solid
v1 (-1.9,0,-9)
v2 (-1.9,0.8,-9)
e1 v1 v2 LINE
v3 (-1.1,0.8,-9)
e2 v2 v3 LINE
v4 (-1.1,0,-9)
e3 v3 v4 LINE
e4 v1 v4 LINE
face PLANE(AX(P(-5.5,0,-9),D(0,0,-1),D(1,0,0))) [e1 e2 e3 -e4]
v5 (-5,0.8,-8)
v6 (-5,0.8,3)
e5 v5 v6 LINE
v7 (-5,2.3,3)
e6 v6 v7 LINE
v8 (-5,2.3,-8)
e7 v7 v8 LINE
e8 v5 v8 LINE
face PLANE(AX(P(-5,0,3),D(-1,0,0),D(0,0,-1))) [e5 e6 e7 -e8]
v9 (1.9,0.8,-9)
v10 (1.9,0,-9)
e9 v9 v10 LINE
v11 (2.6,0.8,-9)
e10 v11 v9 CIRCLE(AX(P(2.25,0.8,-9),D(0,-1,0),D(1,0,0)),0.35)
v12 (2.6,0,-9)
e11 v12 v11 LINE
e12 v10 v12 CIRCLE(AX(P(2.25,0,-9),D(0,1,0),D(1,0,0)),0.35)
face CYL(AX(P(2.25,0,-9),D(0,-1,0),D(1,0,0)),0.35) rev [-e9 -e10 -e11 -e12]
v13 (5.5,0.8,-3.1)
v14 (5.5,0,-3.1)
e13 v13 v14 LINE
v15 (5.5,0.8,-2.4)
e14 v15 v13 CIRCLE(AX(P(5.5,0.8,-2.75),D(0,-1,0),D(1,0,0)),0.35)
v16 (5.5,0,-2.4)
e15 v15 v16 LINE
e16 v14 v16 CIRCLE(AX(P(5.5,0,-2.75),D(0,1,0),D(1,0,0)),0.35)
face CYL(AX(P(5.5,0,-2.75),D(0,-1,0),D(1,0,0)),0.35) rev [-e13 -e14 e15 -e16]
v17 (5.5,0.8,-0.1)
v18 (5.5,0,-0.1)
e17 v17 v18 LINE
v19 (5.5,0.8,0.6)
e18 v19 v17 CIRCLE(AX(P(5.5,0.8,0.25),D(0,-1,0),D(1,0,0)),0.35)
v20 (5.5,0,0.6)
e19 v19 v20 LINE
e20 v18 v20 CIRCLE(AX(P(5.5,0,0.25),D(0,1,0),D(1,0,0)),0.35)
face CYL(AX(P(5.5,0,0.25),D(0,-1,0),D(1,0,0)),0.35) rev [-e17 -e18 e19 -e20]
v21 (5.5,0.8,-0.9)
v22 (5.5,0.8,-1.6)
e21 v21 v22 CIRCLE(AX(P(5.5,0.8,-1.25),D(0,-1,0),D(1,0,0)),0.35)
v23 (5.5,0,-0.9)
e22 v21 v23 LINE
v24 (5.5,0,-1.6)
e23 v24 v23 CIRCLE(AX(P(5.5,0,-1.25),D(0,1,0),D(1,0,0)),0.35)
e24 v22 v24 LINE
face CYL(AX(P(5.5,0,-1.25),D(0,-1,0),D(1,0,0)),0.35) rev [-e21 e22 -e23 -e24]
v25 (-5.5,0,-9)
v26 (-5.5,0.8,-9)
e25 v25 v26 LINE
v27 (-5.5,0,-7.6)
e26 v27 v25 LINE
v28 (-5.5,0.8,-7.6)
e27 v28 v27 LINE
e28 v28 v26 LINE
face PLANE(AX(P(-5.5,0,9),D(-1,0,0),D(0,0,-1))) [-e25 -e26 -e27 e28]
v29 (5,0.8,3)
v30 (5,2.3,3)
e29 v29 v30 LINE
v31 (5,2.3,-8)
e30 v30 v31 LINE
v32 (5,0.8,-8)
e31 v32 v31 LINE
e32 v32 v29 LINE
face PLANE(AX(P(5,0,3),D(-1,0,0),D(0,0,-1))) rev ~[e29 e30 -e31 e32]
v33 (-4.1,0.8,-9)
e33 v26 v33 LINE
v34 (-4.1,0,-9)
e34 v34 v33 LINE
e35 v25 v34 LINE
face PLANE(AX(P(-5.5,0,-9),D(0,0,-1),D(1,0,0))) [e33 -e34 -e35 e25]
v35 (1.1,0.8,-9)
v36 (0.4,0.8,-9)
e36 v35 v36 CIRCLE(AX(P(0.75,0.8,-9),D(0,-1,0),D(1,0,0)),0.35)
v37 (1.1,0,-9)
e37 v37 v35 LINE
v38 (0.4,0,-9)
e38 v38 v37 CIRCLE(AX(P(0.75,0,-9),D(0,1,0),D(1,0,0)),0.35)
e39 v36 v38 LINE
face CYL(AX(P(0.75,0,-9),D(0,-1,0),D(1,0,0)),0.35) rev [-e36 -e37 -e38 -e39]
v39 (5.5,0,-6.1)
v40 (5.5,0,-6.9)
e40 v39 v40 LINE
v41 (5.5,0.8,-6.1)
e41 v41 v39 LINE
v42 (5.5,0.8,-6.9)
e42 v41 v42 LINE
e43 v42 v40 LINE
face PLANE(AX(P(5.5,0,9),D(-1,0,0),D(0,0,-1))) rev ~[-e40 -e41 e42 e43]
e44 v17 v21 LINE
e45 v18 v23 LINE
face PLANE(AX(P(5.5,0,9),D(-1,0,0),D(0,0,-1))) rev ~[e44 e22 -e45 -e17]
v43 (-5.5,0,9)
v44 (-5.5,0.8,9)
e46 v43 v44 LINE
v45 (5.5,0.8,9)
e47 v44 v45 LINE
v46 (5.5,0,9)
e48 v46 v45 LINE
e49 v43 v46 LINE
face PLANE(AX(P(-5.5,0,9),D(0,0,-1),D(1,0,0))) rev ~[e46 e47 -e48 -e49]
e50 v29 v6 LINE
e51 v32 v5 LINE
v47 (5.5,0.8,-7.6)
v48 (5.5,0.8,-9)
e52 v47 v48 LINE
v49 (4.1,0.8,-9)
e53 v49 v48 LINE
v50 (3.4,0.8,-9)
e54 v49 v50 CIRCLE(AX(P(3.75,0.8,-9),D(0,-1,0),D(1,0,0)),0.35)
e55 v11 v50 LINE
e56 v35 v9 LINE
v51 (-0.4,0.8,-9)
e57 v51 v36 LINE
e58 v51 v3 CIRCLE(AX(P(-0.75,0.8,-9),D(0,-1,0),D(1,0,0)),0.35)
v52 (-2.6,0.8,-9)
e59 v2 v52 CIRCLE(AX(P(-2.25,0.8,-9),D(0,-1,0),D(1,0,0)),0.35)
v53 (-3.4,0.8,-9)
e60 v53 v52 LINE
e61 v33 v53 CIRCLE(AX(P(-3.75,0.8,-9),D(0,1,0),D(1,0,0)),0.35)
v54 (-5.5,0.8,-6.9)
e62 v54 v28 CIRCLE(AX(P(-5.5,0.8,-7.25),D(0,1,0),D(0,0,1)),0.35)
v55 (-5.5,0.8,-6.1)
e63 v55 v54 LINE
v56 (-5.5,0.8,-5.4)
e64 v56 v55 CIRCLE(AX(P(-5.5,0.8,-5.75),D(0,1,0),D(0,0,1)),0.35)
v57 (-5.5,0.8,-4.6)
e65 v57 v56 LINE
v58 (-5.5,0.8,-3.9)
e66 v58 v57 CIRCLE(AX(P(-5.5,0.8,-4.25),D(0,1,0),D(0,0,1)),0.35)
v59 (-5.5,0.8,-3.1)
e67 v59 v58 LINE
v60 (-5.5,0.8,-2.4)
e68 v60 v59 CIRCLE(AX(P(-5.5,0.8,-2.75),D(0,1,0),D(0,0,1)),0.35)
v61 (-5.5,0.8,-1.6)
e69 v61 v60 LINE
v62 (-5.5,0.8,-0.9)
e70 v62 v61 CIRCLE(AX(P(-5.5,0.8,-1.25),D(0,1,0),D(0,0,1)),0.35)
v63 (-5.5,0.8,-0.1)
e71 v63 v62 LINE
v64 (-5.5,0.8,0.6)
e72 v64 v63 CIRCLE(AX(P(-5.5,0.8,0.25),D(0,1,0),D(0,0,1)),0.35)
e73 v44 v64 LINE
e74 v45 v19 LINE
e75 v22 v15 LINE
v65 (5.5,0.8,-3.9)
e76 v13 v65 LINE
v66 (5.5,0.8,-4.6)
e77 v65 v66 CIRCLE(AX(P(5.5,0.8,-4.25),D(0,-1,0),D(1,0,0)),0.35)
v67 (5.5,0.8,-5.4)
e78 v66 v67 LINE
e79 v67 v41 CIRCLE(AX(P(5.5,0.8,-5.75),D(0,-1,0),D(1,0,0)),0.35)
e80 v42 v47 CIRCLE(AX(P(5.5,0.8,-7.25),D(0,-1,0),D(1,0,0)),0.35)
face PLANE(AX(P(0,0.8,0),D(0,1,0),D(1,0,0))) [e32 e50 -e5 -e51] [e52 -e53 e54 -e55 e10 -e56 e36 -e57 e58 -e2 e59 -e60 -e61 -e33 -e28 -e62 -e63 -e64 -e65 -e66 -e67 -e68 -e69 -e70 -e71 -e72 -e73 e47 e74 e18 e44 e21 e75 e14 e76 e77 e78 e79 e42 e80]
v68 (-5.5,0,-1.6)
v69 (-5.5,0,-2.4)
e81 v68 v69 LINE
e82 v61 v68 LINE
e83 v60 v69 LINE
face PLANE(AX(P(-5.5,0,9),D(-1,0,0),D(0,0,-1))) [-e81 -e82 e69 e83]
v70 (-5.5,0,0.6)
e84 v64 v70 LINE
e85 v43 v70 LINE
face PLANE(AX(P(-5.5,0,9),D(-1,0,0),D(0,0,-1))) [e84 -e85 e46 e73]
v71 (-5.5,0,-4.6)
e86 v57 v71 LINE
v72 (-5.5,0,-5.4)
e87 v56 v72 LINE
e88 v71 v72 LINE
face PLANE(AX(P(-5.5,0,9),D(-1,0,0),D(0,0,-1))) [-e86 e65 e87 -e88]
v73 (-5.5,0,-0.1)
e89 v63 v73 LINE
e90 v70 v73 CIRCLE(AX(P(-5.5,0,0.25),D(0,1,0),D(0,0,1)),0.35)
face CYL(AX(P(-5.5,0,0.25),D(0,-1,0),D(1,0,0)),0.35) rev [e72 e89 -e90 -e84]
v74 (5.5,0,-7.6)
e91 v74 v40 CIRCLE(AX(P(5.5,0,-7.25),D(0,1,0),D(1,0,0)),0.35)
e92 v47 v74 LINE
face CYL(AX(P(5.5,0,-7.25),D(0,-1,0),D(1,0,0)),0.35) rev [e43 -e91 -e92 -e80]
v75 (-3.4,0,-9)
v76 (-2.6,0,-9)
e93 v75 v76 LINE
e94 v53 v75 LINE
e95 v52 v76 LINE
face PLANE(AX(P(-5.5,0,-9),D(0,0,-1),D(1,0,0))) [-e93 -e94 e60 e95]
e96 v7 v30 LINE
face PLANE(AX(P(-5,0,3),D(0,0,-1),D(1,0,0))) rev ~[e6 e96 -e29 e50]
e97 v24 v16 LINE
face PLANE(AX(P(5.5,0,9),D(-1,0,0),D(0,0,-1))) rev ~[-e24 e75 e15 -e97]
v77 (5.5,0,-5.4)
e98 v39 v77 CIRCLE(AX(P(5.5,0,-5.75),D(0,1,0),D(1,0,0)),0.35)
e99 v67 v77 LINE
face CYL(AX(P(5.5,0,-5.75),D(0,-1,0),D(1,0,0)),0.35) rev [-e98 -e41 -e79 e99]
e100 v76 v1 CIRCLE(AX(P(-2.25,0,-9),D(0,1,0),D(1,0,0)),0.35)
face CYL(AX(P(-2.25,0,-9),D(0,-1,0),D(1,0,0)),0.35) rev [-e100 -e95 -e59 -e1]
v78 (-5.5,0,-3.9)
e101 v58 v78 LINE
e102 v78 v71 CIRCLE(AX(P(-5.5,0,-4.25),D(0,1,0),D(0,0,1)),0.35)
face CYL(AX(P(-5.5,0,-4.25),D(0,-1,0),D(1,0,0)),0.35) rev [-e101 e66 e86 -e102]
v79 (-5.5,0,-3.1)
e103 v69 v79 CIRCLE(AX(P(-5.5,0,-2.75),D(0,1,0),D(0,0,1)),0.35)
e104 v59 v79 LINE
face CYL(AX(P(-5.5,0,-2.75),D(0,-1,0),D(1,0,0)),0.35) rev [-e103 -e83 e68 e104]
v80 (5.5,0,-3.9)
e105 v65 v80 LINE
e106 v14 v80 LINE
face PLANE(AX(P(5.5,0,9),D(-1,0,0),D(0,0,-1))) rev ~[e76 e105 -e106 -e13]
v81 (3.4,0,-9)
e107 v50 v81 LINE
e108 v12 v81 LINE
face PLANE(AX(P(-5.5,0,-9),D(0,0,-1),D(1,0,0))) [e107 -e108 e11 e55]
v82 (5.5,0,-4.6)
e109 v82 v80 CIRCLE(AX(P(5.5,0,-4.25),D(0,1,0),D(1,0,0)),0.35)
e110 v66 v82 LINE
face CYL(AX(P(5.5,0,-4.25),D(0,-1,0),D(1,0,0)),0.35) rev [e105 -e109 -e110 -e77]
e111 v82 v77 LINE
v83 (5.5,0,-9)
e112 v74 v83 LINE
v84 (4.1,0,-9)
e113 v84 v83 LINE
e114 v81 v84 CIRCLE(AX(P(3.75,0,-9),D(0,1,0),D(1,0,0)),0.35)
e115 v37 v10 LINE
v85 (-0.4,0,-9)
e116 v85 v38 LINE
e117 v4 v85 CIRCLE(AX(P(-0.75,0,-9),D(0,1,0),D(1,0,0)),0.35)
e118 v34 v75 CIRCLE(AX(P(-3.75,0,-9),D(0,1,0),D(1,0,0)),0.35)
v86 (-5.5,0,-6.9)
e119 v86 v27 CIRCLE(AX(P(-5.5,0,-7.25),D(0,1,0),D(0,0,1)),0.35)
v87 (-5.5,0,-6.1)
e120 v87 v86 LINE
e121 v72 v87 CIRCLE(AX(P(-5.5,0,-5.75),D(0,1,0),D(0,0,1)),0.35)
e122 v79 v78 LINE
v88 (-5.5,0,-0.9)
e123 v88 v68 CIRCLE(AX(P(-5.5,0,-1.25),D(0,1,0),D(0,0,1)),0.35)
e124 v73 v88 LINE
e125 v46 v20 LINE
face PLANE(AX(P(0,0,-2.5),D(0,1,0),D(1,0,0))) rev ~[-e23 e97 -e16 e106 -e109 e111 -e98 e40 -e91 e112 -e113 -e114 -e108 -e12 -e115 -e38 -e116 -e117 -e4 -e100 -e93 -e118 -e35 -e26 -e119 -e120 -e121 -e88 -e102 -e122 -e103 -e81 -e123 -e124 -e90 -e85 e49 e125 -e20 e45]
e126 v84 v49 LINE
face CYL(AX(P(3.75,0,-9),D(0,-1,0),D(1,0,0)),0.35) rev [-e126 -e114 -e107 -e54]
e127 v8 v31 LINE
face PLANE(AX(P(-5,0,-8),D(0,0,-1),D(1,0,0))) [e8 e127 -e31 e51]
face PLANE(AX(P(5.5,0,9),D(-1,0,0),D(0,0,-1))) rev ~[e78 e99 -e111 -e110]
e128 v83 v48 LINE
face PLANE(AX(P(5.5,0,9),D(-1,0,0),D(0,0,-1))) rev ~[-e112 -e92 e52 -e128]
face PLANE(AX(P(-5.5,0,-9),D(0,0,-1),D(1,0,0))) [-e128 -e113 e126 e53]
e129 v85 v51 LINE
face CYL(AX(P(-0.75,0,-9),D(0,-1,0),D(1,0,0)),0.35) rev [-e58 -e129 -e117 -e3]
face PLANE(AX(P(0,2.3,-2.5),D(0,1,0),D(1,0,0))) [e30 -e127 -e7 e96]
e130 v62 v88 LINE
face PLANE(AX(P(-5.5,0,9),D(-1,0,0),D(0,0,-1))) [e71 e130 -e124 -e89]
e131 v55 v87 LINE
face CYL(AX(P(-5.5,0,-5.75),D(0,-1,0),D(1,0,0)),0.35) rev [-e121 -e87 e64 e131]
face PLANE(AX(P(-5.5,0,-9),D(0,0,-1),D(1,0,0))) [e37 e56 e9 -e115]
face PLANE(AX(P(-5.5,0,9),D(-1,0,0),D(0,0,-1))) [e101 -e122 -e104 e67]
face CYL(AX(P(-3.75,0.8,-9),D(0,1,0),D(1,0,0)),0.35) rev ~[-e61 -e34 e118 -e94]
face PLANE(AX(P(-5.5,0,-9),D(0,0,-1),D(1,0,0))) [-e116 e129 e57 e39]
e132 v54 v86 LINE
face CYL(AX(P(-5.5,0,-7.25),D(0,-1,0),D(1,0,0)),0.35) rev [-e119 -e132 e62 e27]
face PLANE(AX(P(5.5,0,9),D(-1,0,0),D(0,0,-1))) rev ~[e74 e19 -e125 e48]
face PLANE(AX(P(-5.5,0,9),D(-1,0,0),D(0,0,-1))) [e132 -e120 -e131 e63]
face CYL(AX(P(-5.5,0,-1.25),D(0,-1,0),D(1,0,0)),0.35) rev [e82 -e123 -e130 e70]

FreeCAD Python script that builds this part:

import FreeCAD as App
import Part
import Sketcher
Q = App.Units.Quantity


def add_polygon(sketch, points):
    """Adds a closed chain of lines whose ends are joined by coincident constraints."""
    first, n = sketch.GeometryCount, len(points)
    for a, b in zip(points, points[1:] + points[:1]):
        sketch.addGeometry(Part.LineSegment(App.Vector(*a, 0), App.Vector(*b, 0)), False)
    for i in range(n):
        sketch.addConstraint(Sketcher.Constraint("Coincident", first + i, 2, first + (i + 1) % n, 1))

doc = App.newDocument("Part")
body = doc.addObject("PartDesign::Body", "Body")

# Sketch on XZ plane
sketch1 = doc.addObject("Sketcher::SketchObject", "Sketch")
body.addObject(sketch1)
sketch1.AttachmentSupport = (doc.XZ_Plane, [""])
sketch1.MapMode = "FlatFace"
add_polygon(sketch1, [(-6, -9), (-6, 9), (6, 9), (6, -9)])  # lines 0-3
sketch1.addConstraint([
    Sketcher.Constraint("Vertical", 0),
    Sketcher.Constraint("Horizontal", 1),
    Sketcher.Constraint("Vertical", 2),
    Sketcher.Constraint("Horizontal", 3),
    Sketcher.Constraint("Symmetric", 0, 2, 2, 2, -1, 1),
    Sketcher.Constraint("DistanceX", 1, 1, 1, 2, Q("11 mm")),
    Sketcher.Constraint("DistanceY", 0, 1, 0, 2, Q("18 mm")),
])
pad1 = doc.addObject("PartDesign::Pad", "Pad")
body.addObject(pad1)
pad1.Profile = sketch1
pad1.Length = 0.8
pad1.Reversed = True

# Sketch on XZ plane
sketch2 = doc.addObject("Sketcher::SketchObject", "Sketch001")
body.addObject(sketch2)
sketch2.AttachmentSupport = (doc.XZ_Plane, [""])
sketch2.MapMode = "FlatFace"
add_polygon(sketch2, [(-5, -8), (-5, 3), (5, 3), (5, -8)])  # lines 0-3
sketch2.addConstraint([
    Sketcher.Constraint("Vertical", 0),
    Sketcher.Constraint("Horizontal", 1),
    Sketcher.Constraint("Vertical", 2),
    Sketcher.Constraint("Horizontal", 3),
    Sketcher.Constraint("DistanceX", 1, 1, 1, 2, Q("10 mm")),
    Sketcher.Constraint("DistanceY", 0, 1, 0, 2, Q("11 mm")),
    Sketcher.Constraint("DistanceX", 0, 2, -1, 1, Q("5 mm")),
    Sketcher.Constraint("DistanceY", -1, 1, 0, 2, Q("3 mm")),
])
pad2 = doc.addObject("PartDesign::Pad", "Pad001")
body.addObject(pad2)
pad2.Profile = sketch2
pad2.Length = 2.3
pad2.Reversed = True

# Sketch on XZ plane
sketch3 = doc.addObject("Sketcher::SketchObject", "Sketch002")
body.addObject(sketch3)
sketch3.AttachmentSupport = (doc.XZ_Plane, [""])
sketch3.MapMode = "FlatFace"
sketch3.AttachmentOffset = App.Placement(App.Vector(0, 0, -0.8), App.Rotation())
sketch3.addGeometry(Part.Circle(App.Vector(-3.75, -9, 0), App.Vector(0, 0, 1), 0.35), False)
sketch3.addConstraint([
    Sketcher.Constraint("Diameter", 0, Q("0.7 mm")),
    Sketcher.Constraint("DistanceY", 0, 3, -1, 1, Q("9 mm")),
    Sketcher.Constraint("DistanceX", 0, 3, -1, 1, Q("3.75 mm")),
])
pocket1 = doc.addObject("PartDesign::Pocket", "Pocket")
body.addObject(pocket1)
pocket1.Profile = sketch3
pocket1.Length = 2.3
pocket1.Reversed = True

# Sketch on XZ plane
sketch4 = doc.addObject("Sketcher::SketchObject", "Sketch003")
body.addObject(sketch4)
sketch4.AttachmentSupport = (doc.XZ_Plane, [""])
sketch4.MapMode = "FlatFace"
sketch4.addGeometry([
    Part.Circle(App.Vector(-2.25, -9, 0), App.Vector(0, 0, 1), 0.35),  # 0
    Part.Circle(App.Vector(-0.75, -9, 0), App.Vector(0, 0, 1), 0.35),  # 1
    Part.Circle(App.Vector(0.75, -9, 0), App.Vector(0, 0, 1), 0.35),  # 2
    Part.Circle(App.Vector(3.75, -9, 0), App.Vector(0, 0, 1), 0.35),  # 3
    Part.Circle(App.Vector(2.25, -9, 0), App.Vector(0, 0, 1), 0.35),  # 4
], False)
sketch4.addConstraint([
    Sketcher.Constraint("Equal", 0, 1),
    Sketcher.Constraint("Equal", 1, 2),
    Sketcher.Constraint("Equal", 2, 3),
    Sketcher.Constraint("Equal", 3, 4),
    Sketcher.Constraint("Symmetric", 1, 3, 2, 3, -2),
    Sketcher.Constraint("Symmetric", 0, 3, 4, 3, -2),
    Sketcher.Constraint("Horizontal", 0, 3, 1, 3),
    Sketcher.Constraint("Horizontal", 2, 3, 3, 3),
    Sketcher.Constraint("Diameter", 0, Q("0.7 mm")),
    Sketcher.Constraint("DistanceY", 0, 3, -1, 1, Q("9 mm")),
    Sketcher.Constraint("DistanceX", 0, 3, 2, 3, Q("3 mm")),
    Sketcher.Constraint("DistanceX", 2, 3, 3, 3, Q("3 mm")),
    Sketcher.Constraint("DistanceX", 0, 3, 1, 3, Q("1.5 mm")),
])
pocket2 = doc.addObject("PartDesign::Pocket", "Pocket001")
body.addObject(pocket2)
pocket2.Profile = sketch4
pocket2.Type = "ThroughAll"
pocket2.Midplane = True

# Sketch on XZ plane
sketch5 = doc.addObject("Sketcher::SketchObject", "Sketch004")
body.addObject(sketch5)
sketch5.AttachmentSupport = (doc.XZ_Plane, [""])
sketch5.MapMode = "FlatFace"
sketch5.addGeometry([
    Part.Circle(App.Vector(-5.5, -7.25, 0), App.Vector(0, 0, 1), 0.35),  # 0
    Part.Circle(App.Vector(5.5, -7.25, 0), App.Vector(0, 0, 1), 0.35),  # 1
    Part.Circle(App.Vector(5.5, 0.25, 0), App.Vector(0, 0, 1), 0.35),  # 2
    Part.Circle(App.Vector(-5.5, -2.75, 0), App.Vector(0, 0, 1), 0.35),  # 3
    Part.Circle(App.Vector(5.5, -5.75, 0), App.Vector(0, 0, 1), 0.35),  # 4
    Part.Circle(App.Vector(-5.5, -4.25, 0), App.Vector(0, 0, 1), 0.35),  # 5
    Part.Circle(App.Vector(5.5, -2.75, 0), App.Vector(0, 0, 1), 0.35),  # 6
    Part.Circle(App.Vector(-5.5, -5.75, 0), App.Vector(0, 0, 1), 0.35),  # 7
    Part.Circle(App.Vector(5.5, -4.25, 0), App.Vector(0, 0, 1), 0.35),  # 8
    Part.Circle(App.Vector(5.5, -1.25, 0), App.Vector(0, 0, 1), 0.35),  # 9
    Part.Circle(App.Vector(-5.5, -1.25, 0), App.Vector(0, 0, 1), 0.35),  # 10
    Part.Circle(App.Vector(-5.5, 0.25, 0), App.Vector(0, 0, 1), 0.35),  # 11
], False)
sketch5.addConstraint([
    Sketcher.Constraint("Equal", 0, 1),
    Sketcher.Constraint("Equal", 1, 2),
    Sketcher.Constraint("Equal", 2, 3),
    Sketcher.Constraint("Equal", 3, 4),
    Sketcher.Constraint("Equal", 4, 5),
    Sketcher.Constraint("Equal", 5, 6),
    Sketcher.Constraint("Equal", 6, 7),
    Sketcher.Constraint("Equal", 7, 8),
    Sketcher.Constraint("Equal", 8, 9),
    Sketcher.Constraint("Equal", 9, 10),
    Sketcher.Constraint("Equal", 10, 11),
    Sketcher.Constraint("Symmetric", 0, 3, 1, 3, -2),
    Sketcher.Constraint("Symmetric", 3, 3, 6, 3, -2),
    Sketcher.Constraint("Symmetric", 4, 3, 7, 3, -2),
    Sketcher.Constraint("Symmetric", 5, 3, 8, 3, -2),
    Sketcher.Constraint("Symmetric", 9, 3, 10, 3, -2),
    Sketcher.Constraint("Symmetric", 2, 3, 11, 3, -2),
    Sketcher.Constraint("Vertical", 1, 3, 2, 3),
    Sketcher.Constraint("Vertical", 0, 3, 3, 3),
    Sketcher.Constraint("Vertical", 2, 3, 4, 3),
    Sketcher.Constraint("Vertical", 3, 3, 5, 3),
    Sketcher.Constraint("Vertical", 8, 3, 9, 3),
    Sketcher.Constraint("Diameter", 0, Q("0.7 mm")),
    Sketcher.Constraint("DistanceX", 0, 3, 1, 3, Q("11 mm")),
    Sketcher.Constraint("DistanceY", 3, 3, 2, 3, Q("3 mm")),
    Sketcher.Constraint("DistanceY", 4, 3, 2, 3, Q("6 mm")),
    Sketcher.Constraint("DistanceY", 0, 3, 5, 3, Q("3 mm")),
    Sketcher.Constraint("DistanceY", 8, 3, 9, 3, Q("3 mm")),
    Sketcher.Constraint("DistanceY", 1, 3, 2, 3, Q("7.5 mm")),
    Sketcher.Constraint("DistanceY", 0, 3, -1, 1, Q("7.25 mm")),
])
pocket3 = doc.addObject("PartDesign::Pocket", "Pocket002")
body.addObject(pocket3)
pocket3.Profile = sketch5
pocket3.Type = "ThroughAll"
pocket3.Midplane = True

doc.recompute()
